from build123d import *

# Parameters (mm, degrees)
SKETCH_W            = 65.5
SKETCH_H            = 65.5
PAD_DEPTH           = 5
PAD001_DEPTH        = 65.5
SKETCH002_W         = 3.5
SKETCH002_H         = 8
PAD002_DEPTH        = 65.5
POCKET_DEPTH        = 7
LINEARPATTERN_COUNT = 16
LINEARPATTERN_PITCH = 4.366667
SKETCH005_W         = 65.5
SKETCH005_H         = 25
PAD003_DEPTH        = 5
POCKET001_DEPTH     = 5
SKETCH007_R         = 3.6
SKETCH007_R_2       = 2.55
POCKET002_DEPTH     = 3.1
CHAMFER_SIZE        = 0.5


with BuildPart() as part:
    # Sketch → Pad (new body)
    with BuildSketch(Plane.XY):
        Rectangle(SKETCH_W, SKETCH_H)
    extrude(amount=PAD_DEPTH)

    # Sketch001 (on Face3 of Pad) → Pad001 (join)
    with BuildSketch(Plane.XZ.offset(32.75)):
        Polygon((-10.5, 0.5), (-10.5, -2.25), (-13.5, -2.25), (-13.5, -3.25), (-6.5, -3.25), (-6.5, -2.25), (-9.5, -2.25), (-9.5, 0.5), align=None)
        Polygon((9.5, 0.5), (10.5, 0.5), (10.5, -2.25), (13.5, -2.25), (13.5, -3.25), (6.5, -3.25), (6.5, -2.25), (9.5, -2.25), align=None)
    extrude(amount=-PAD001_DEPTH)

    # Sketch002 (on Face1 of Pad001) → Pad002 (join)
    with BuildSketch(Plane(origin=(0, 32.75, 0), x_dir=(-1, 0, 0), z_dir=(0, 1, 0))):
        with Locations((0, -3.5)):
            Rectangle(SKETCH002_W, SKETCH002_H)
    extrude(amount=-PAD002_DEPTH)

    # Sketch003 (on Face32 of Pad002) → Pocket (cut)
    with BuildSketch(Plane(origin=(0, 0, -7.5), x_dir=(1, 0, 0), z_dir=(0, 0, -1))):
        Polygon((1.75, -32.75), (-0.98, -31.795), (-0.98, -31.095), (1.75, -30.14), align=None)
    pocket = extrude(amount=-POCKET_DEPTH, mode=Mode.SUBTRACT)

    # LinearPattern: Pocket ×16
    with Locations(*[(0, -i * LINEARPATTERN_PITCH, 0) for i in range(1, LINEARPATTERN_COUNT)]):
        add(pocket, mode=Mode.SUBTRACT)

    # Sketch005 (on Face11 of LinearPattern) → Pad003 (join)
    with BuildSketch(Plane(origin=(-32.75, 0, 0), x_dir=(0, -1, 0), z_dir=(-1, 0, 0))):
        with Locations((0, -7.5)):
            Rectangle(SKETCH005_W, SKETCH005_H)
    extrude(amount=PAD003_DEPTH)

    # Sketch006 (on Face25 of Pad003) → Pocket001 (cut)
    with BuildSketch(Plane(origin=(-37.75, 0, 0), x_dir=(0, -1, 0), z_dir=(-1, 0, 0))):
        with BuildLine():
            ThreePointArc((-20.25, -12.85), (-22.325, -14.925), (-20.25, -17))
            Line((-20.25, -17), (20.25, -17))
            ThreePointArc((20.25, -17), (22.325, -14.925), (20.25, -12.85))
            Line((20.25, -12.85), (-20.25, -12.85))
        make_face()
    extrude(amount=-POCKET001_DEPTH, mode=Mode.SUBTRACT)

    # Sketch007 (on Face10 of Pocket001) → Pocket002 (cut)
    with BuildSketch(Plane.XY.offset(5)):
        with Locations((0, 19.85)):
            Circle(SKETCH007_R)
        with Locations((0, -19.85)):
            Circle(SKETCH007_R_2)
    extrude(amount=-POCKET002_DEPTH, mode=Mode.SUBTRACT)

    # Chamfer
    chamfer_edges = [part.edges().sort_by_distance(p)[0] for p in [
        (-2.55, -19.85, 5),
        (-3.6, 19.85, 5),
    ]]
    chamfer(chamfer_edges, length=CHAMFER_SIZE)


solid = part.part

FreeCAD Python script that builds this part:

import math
import FreeCAD as App
import Part
import Sketcher
Q = App.Units.Quantity


def edges_at(feature, points):
    """Names of the edges that pass closest to the given points."""
    edges = feature.Shape.Edges
    near = lambda p: min(range(len(edges)), key=lambda i: edges[i].distToShape(Part.Vertex(*p))[0])
    return sorted({f"Edge{near(p) + 1}" for p in points})


def add_polygon(sketch, points):
    """Adds a closed chain of lines whose ends are joined by coincident constraints."""
    first, n = sketch.GeometryCount, len(points)
    for a, b in zip(points, points[1:] + points[:1]):
        sketch.addGeometry(Part.LineSegment(App.Vector(*a, 0), App.Vector(*b, 0)), False)
    for i in range(n):
        sketch.addConstraint(Sketcher.Constraint("Coincident", first + i, 2, first + (i + 1) % n, 1))

doc = App.newDocument("Part")
body = doc.addObject("PartDesign::Body", "Body")

# Sketch on XY plane
sketch1 = body.newObject("Sketcher::SketchObject", "Sketch")
sketch1.AttachmentSupport = (doc.getObject("XY_Plane"), [""])
sketch1.MapMode = "FlatFace"
add_polygon(sketch1, [(-33, 33), (-33, -33), (33, -33), (33, 33)])  # lines 0-3
sketch1.addConstraint([
    Sketcher.Constraint("Vertical", 0),
    Sketcher.Constraint("Horizontal", 1),
    Sketcher.Constraint("Vertical", 2),
    Sketcher.Constraint("Horizontal", 3),
    Sketcher.Constraint("Symmetric", 0, 2, 2, 2, -1, 1),
    Sketcher.Constraint("Equal", 3, 0),
    Sketcher.Constraint("DistanceX", 1, 1, 1, 2, Q("65.5 mm")),
])
pad1 = body.newObject("PartDesign::Pad", "Pad")
pad1.Profile = sketch1
pad1.Length = 5

# Sketch on XZ plane
sketch2 = body.newObject("Sketcher::SketchObject", "Sketch001")
sketch2.AttachmentSupport = (doc.getObject("XZ_Plane"), [""])
sketch2.MapMode = "FlatFace"
sketch2.AttachmentOffset = App.Placement(App.Vector(0, 0, 32.75), App.Rotation())
add_polygon(sketch2, [(-10.5, 0.5), (-10.5, -2.2), (-13.5, -2.2), (-13.5, -3.2), (-6.5, -3.2), (-6.5, -2.2), (-9.5, -2.2), (-9.5, 0.5)])  # lines 0-7
add_polygon(sketch2, [(10.5, 0.5), (9.5, 0.5), (9.5, -2.2), (6.5, -2.2), (6.5, -3.2), (13.5, -3.2), (13.5, -2.2), (10.5, -2.2)])  # lines 8-15
sketch2.addConstraint([
    Sketcher.Constraint("Vertical", 0),
    Sketcher.Constraint("Horizontal", 1),
    Sketcher.Constraint("Vertical", 2),
    Sketcher.Constraint("Horizontal", 3),
    Sketcher.Constraint("Vertical", 4),
    Sketcher.Constraint("Horizontal", 5),
    Sketcher.Constraint("Vertical", 6),
    Sketcher.Constraint("Horizontal", 7),
    Sketcher.Constraint("Horizontal", 8),
    Sketcher.Constraint("Vertical", 9),
    Sketcher.Constraint("Horizontal", 10),
    Sketcher.Constraint("Vertical", 11),
    Sketcher.Constraint("Horizontal", 12),
    Sketcher.Constraint("Vertical", 13),
    Sketcher.Constraint("Horizontal", 14),
    Sketcher.Constraint("Vertical", 15),
    Sketcher.Constraint("Symmetric", 6, 2, 8, 2, -2),
    Sketcher.Constraint("Symmetric", 4, 2, 10, 2, -2),
    Sketcher.Constraint("Symmetric", 2, 2, 12, 2, -2),
    Sketcher.Constraint("Symmetric", 0, 2, 14, 2, -2),
    Sketcher.Constraint("Horizontal", 1, 2, 4, 2),
    Sketcher.Constraint("Equal", 1, 5),
    Sketcher.Constraint("Equal", 8, 2),
    Sketcher.Constraint("DistanceX", 1, 2, 1, 1, Q("3 mm")),
    Sketcher.Constraint("DistanceX", 3, 1, 3, 2, Q("7 mm")),
    Sketcher.Constraint("DistanceX", 4, 2, 8, 2, Q("16 mm")),
    Sketcher.Constraint("DistanceY", 0, 2, 0, 1, Q("2.75 mm")),
    Sketcher.Constraint("DistanceY", -1, 1, 6, 2, Q("0.5 mm")),
])
pad2 = body.newObject("PartDesign::Pad", "Pad001")
pad2.Profile = sketch2
pad2.Length = 65.5
pad2.Reversed = True

# Sketch on XZ plane
sketch3 = body.newObject("Sketcher::SketchObject", "Sketch002")
sketch3.AttachmentSupport = (doc.getObject("XZ_Plane"), [""])
sketch3.MapMode = "FlatFace"
sketch3.AttachmentOffset = App.Placement(App.Vector(0, 0, -32.75), App.Rotation())
add_polygon(sketch3, [(1.8, 0.5), (1.8, -7.5), (-1.8, -7.5), (-1.8, 0.5)])  # lines 0-3
sketch3.addConstraint([
    Sketcher.Constraint("Vertical", 0),
    Sketcher.Constraint("Horizontal", 1),
    Sketcher.Constraint("Vertical", 2),
    Sketcher.Constraint("Horizontal", 3),
    Sketcher.Constraint("DistanceY", 0, 2, 0, 1, Q("8 mm")),
    Sketcher.Constraint("DistanceX", 1, 2, 1, 1, Q("3.5 mm")),
    Sketcher.Constraint("DistanceY", 0, 2, -1, 1, Q("7.5 mm")),
    Sketcher.Constraint("DistanceX", -1, 1, 0, 2, Q("1.75 mm")),
])
pad3 = body.newObject("PartDesign::Pad", "Pad002")
pad3.Profile = sketch3
pad3.Length = 65.5

# Sketch on XY plane
sketch4 = body.newObject("Sketcher::SketchObject", "Sketch003")
sketch4.AttachmentSupport = (doc.getObject("XY_Plane"), [""])
sketch4.MapMode = "FlatFace"
sketch4.AttachmentOffset = App.Placement(App.Vector(0, 0, -7.5), App.Rotation())
add_polygon(sketch4, [(-1, 31.8), (1.8, 32.8), (1.8, 30.1), (-1, 31.1)])  # lines 0-3
sketch4.addConstraint([
    Sketcher.Constraint("Vertical", 1),
    Sketcher.Constraint("Vertical", 3),
    Sketcher.Constraint("Equal", 0, 2),
    Sketcher.Constraint("DistanceY", 3, 1, 3, 2, Q("0.7 mm")),
    Sketcher.Constraint("DistanceY", 1, 2, 1, 1, Q("2.61 mm")),
    Sketcher.Constraint("DistanceX", -1, 1, 0, 2, Q("1.75 mm")),
    Sketcher.Constraint("DistanceY", -1, 1, 0, 2, Q("32.75 mm")),
    Sketcher.Constraint("DistanceX", 2, 2, -1, 1, Q("0.98 mm")),
])
pocket1 = body.newObject("PartDesign::Pocket", "Pocket")
pocket1.Profile = sketch4
pocket1.Length = 7
pocket1.Reversed = True
doc.recompute()

linearpattern = body.newObject("PartDesign::LinearPattern", "LinearPattern")
linearpattern.Originals = [pocket1]
linearpattern.Direction = (doc.getObject("Y_Axis"), [""])
linearpattern.Mode = "offset"
linearpattern.Offset = 4.366667
linearpattern.Occurrences = 16
linearpattern.Reversed = True
body.Tip = linearpattern

# Sketch on YZ plane
sketch5 = body.newObject("Sketcher::SketchObject", "Sketch004")
sketch5.AttachmentSupport = (doc.getObject("YZ_Plane"), [""])
sketch5.MapMode = "FlatFace"
sketch5.AttachmentOffset = App.Placement(App.Vector(0, 0, -32.75), App.Rotation())
add_polygon(sketch5, [(33, 5), (33, -20), (-33, -20), (-33, 5)])  # lines 0-3
sketch5.addConstraint([
    Sketcher.Constraint("Vertical", 0),
    Sketcher.Constraint("Horizontal", 1),
    Sketcher.Constraint("Vertical", 2),
    Sketcher.Constraint("Horizontal", 3),
    Sketcher.Constraint("DistanceY", 0, 2, 0, 1, Q("25 mm")),
    Sketcher.Constraint("DistanceX", 1, 2, 1, 1, Q("65.5 mm")),
    Sketcher.Constraint("DistanceY", 0, 2, -1, 1, Q("20 mm")),
    Sketcher.Constraint("DistanceX", -1, 1, 0, 2, Q("32.75 mm")),
])
pad4 = body.newObject("PartDesign::Pad", "Pad003")
pad4.Profile = sketch5
pad4.Length = 5
pad4.Reversed = True

# Sketch on YZ plane
sketch6 = body.newObject("Sketcher::SketchObject", "Sketch005")
sketch6.AttachmentSupport = (doc.getObject("YZ_Plane"), [""])
sketch6.MapMode = "FlatFace"
sketch6.AttachmentOffset = App.Placement(App.Vector(0, 0, -37.75), App.Rotation())
sketch6.addGeometry([
    Part.ArcOfCircle(Part.Circle(App.Vector(20.2, -14.9, 0), App.Vector(0, 0, 1), 2.1), math.radians(-90), math.radians(90)),
    Part.LineSegment(App.Vector(20.2, -17, 0), App.Vector(-20.2, -17, 0)),
    Part.ArcOfCircle(Part.Circle(App.Vector(-20.2, -14.9, 0), App.Vector(0, 0, 1), 2.1), math.radians(90), math.radians(270)),
    Part.LineSegment(App.Vector(-20.2, -12.8, 0), App.Vector(20.2, -12.8, 0)),
], False)
sketch6.addConstraint([
    Sketcher.Constraint("Tangent", 0, 1, 1, 1),
    Sketcher.Constraint("Tangent", 1, 2, 2, 2),
    Sketcher.Constraint("Tangent", 2, 1, 3, 1),
    Sketcher.Constraint("Tangent", 3, 2, 0, 2),
    Sketcher.Constraint("Horizontal", 1),
    Sketcher.Constraint("Horizontal", 3),
    Sketcher.Constraint("DistanceX", 1, 2, 1, 1, Q("40.5 mm")),
    Sketcher.Constraint("DistanceY", 0, 1, -1, 1, Q("17 mm")),
    Sketcher.Constraint("Radius", 0, Q("2.075 mm")),
    Sketcher.Constraint("DistanceX", -1, 1, 0, 3, Q("20.25 mm")),
])
pocket2 = body.newObject("PartDesign::Pocket", "Pocket001")
pocket2.Profile = sketch6
pocket2.Length = 5
pocket2.Reversed = True

# Sketch on XY plane
sketch7 = body.newObject("Sketcher::SketchObject", "Sketch006")
sketch7.AttachmentSupport = (doc.getObject("XY_Plane"), [""])
sketch7.MapMode = "FlatFace"
sketch7.AttachmentOffset = App.Placement(App.Vector(0, 0, 5), App.Rotation())
sketch7.addGeometry([
    Part.Circle(App.Vector(0, 19.9, 0), App.Vector(0, 0, 1), 3.6),
    Part.Circle(App.Vector(0, -19.9, 0), App.Vector(0, 0, 1), 2.5),
], False)
sketch7.addConstraint([
    Sketcher.Constraint("Symmetric", 0, 3, 1, 3, -1, 1),
    Sketcher.Constraint("PointOnObject", 0, 3, -2),
    Sketcher.Constraint("Diameter", 0, Q("7.2 mm")),
    Sketcher.Constraint("Diameter", 1, Q("5.1 mm")),
    Sketcher.Constraint("DistanceY", 1, 3, 0, 3, Q("39.7 mm")),
])
pocket3 = body.newObject("PartDesign::Pocket", "Pocket002")
pocket3.Profile = sketch7
pocket3.Length = 3.1
doc.recompute()

chamfer = body.newObject("PartDesign::Chamfer", "Chamfer")
chamfer.Base = (pocket3, edges_at(pocket3, [(-2.55, -19.85, 5), (-3.6, 19.85, 5)]))
chamfer.Size = 0.5

doc.recompute()
